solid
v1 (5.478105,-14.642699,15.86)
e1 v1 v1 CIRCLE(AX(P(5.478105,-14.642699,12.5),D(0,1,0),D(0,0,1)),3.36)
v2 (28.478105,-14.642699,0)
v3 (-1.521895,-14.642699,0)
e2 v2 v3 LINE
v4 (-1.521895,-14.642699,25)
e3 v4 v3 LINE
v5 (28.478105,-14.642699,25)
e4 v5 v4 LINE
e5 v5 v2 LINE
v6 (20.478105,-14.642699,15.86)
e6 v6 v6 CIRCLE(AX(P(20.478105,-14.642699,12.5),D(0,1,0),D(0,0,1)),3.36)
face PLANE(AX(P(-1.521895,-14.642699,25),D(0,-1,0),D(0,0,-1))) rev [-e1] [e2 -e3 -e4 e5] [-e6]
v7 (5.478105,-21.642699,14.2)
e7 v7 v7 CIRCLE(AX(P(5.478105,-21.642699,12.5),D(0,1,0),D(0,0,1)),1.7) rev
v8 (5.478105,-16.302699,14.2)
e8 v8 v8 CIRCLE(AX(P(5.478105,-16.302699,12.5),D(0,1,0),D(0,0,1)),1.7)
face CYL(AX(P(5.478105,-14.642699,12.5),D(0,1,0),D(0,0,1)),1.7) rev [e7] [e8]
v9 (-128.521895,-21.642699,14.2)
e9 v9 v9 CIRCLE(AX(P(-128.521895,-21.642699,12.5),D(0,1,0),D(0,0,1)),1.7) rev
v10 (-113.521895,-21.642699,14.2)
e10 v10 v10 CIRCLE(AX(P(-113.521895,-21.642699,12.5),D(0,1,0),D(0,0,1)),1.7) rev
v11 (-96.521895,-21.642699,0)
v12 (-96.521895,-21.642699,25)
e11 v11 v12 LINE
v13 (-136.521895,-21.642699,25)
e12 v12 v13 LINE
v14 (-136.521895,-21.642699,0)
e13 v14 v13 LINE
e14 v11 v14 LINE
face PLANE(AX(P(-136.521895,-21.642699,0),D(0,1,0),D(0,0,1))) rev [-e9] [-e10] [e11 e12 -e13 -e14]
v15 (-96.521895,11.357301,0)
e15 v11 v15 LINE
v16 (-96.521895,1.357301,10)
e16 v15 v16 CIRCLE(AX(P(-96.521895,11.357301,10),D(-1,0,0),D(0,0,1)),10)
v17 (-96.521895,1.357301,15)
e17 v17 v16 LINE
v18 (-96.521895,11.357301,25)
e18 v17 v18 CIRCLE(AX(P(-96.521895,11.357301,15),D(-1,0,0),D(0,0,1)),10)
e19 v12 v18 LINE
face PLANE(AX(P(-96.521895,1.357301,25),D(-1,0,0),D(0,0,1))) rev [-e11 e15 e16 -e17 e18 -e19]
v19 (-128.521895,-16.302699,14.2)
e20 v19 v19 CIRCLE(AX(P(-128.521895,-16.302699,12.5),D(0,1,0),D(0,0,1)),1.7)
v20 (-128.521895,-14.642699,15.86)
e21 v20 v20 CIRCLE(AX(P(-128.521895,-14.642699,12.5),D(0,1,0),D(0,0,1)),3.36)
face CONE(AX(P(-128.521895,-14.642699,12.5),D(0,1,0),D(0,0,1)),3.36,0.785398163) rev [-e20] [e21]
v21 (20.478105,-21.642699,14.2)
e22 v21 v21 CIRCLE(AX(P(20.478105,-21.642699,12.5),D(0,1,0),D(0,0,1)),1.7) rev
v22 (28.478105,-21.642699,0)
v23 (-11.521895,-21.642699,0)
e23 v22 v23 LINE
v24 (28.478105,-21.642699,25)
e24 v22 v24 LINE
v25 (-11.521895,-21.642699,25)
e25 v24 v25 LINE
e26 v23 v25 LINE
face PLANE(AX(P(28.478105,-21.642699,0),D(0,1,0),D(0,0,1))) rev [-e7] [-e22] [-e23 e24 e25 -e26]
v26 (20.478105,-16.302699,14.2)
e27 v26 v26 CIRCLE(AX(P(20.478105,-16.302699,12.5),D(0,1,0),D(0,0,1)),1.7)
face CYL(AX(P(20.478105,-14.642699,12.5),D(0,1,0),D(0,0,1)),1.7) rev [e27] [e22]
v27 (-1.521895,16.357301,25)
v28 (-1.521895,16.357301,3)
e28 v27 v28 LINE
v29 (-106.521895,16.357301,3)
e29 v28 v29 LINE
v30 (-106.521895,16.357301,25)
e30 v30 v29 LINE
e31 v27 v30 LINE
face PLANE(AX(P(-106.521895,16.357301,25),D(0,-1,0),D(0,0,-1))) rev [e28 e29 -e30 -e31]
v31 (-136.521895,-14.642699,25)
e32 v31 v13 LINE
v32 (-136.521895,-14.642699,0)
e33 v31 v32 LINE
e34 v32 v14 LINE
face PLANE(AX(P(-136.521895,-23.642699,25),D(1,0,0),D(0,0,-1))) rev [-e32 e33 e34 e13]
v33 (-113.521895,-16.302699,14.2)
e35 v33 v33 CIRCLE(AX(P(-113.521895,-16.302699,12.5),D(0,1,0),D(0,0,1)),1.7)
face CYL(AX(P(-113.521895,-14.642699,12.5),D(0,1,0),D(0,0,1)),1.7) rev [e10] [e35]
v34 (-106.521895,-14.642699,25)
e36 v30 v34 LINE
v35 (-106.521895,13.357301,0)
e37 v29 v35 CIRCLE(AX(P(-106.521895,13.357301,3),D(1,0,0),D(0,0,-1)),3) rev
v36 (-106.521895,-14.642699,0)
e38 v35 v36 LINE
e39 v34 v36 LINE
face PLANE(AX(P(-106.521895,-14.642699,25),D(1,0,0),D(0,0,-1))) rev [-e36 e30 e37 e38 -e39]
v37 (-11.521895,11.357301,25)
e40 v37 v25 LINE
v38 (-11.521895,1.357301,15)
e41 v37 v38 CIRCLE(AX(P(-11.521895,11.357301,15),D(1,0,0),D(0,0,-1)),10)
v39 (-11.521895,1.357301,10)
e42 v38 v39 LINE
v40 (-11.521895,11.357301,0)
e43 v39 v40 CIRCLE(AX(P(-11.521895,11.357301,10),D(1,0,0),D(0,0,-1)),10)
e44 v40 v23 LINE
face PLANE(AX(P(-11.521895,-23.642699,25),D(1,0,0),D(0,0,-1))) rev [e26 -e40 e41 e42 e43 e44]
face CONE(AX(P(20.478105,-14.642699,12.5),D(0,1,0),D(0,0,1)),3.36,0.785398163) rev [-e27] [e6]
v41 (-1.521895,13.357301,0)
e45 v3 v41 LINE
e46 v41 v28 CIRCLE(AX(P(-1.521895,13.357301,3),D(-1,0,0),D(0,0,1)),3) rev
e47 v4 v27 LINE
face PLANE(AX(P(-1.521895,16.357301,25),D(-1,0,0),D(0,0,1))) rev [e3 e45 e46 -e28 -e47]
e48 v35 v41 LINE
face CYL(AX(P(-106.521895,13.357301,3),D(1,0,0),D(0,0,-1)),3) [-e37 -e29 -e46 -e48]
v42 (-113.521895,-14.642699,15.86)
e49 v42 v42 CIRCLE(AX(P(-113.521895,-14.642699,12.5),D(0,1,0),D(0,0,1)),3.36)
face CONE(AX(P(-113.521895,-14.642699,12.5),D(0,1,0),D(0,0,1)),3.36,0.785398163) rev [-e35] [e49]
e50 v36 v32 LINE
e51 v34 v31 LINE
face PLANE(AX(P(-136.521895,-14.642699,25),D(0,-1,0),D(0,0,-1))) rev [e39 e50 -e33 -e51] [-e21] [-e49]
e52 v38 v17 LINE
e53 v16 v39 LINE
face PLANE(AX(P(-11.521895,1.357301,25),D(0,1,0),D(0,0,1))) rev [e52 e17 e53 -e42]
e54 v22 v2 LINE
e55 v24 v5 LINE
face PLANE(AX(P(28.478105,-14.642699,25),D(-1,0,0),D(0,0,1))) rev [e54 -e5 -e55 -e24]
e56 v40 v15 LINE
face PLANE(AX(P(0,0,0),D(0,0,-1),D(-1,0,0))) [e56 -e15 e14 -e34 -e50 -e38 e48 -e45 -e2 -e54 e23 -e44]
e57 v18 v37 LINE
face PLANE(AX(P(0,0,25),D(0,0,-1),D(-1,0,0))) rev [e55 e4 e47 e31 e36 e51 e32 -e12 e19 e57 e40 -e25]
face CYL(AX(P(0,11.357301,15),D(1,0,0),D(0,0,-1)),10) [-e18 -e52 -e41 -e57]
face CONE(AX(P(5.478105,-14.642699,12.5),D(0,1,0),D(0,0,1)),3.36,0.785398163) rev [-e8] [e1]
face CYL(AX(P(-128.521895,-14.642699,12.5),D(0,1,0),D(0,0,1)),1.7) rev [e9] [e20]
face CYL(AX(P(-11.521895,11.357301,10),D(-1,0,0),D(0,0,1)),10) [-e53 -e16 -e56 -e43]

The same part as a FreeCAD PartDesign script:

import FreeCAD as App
import Part
import Sketcher

V = App.Vector
Q = App.Units.Quantity


def edges_at(feature, points):
    """Names of the edges that pass closest to the given points."""
    edges = feature.Shape.Edges
    near = lambda p: min(range(len(edges)), key=lambda i: edges[i].distToShape(Part.Vertex(*p))[0])
    return sorted({f"Edge{near(p) + 1}" for p in points})

doc = App.newDocument("Part")
body = doc.addObject("PartDesign::Body", "Body")

sketch1 = body.newObject("Sketcher::SketchObject", "Sketch")
sketch1.AttachmentSupport = (doc.getObject("XY_Plane"), [""])
sketch1.MapMode = "FlatFace"
sketch1.addGeometry([
    Part.LineSegment(V(-137, -24, 0), V(-97, -24, 0)),
    Part.LineSegment(V(-97, -24, 0), V(-97, 1, 0)),
    Part.LineSegment(V(-97, 1, 0), V(-12, 1, 0)),
    Part.LineSegment(V(-12, 1, 0), V(-12, -24, 0)),
    Part.LineSegment(V(-12, -24, 0), V(28, -24, 0)),
    Part.LineSegment(V(28, -24, 0), V(28, -15, 0)),
    Part.LineSegment(V(28, -15, 0), V(-2, -15, 0)),
    Part.LineSegment(V(-2, -15, 0), V(-2, 16, 0)),
    Part.LineSegment(V(-2, 16, 0), V(-107, 16, 0)),
    Part.LineSegment(V(-107, 16, 0), V(-107, -15, 0)),
    Part.LineSegment(V(-107, -15, 0), V(-137, -15, 0)),
    Part.LineSegment(V(-137, -15, 0), V(-137, -24, 0)),
], False)
sketch1.addConstraint([
    Sketcher.Constraint("Coincident", 0, 2, 1, 1),
    Sketcher.Constraint("Coincident", 1, 2, 2, 1),
    Sketcher.Constraint("Coincident", 2, 2, 3, 1),
    Sketcher.Constraint("Coincident", 3, 2, 4, 1),
    Sketcher.Constraint("Coincident", 4, 2, 5, 1),
    Sketcher.Constraint("Coincident", 5, 2, 6, 1),
    Sketcher.Constraint("Coincident", 6, 2, 7, 1),
    Sketcher.Constraint("Coincident", 7, 2, 8, 1),
    Sketcher.Constraint("Coincident", 8, 2, 9, 1),
    Sketcher.Constraint("Coincident", 9, 2, 10, 1),
    Sketcher.Constraint("Coincident", 10, 2, 11, 1),
    Sketcher.Constraint("Coincident", 11, 2, 0, 1),
    Sketcher.Constraint("Horizontal", 0),
    Sketcher.Constraint("Vertical", 1),
    Sketcher.Constraint("Horizontal", 2),
    Sketcher.Constraint("Vertical", 3),
    Sketcher.Constraint("Horizontal", 4),
    Sketcher.Constraint("Vertical", 5),
    Sketcher.Constraint("Horizontal", 6),
    Sketcher.Constraint("Vertical", 7),
    Sketcher.Constraint("Horizontal", 8),
    Sketcher.Constraint("Vertical", 9),
    Sketcher.Constraint("Horizontal", 10),
    Sketcher.Constraint("Vertical", 11),
    Sketcher.Constraint("Horizontal", 0, 2, 3, 2),
    Sketcher.Constraint("Horizontal", 6, 2, 9, 2),
    Sketcher.Constraint("Equal", 0, 4),
    Sketcher.Constraint("Equal", 6, 10),
    Sketcher.Constraint("DistanceX", 0, 1, 0, 2, Q("40 mm")),
    Sketcher.Constraint("DistanceX", 2, 1, 2, 2, Q("85 mm")),
    Sketcher.Constraint("DistanceX", 6, 2, 6, 1, Q("30 mm")),
    Sketcher.Constraint("DistanceY", 1, 1, 1, 2, Q("25 mm")),
    Sketcher.Constraint("DistanceY", 5, 1, 5, 2, Q("9 mm")),
    Sketcher.Constraint("DistanceY", 7, 1, 7, 2, Q("31 mm")),
    Sketcher.Constraint("DistanceY", 0, 2, -1, 1, Q("23.642699 mm")),
    Sketcher.Constraint("DistanceX", 0, 2, -1, 1, Q("96.521895 mm")),
])
pad1 = body.newObject("PartDesign::Pad", "Pad")
pad1.Profile = sketch1
pad1.Length = 25
doc.recompute()

fillet = body.newObject("PartDesign::Fillet", "Fillet")
fillet.Base = (pad1, edges_at(pad1, [(-54.022, 1.357, 0), (-54.022, 1.357, 25)]))
fillet.Radius = 10
doc.recompute()

fillet2 = body.newObject("PartDesign::Fillet", "Fillet001")
fillet2.Base = (fillet, edges_at(fillet, [(-54.022, 16.357, 0)]))
fillet2.Radius = 3

sketch2 = body.newObject("Sketcher::SketchObject", "Sketch001")
sketch2.AttachmentSupport = (doc.getObject("XZ_Plane"), [""])
sketch2.MapMode = "FlatFace"
sketch2.AttachmentOffset = App.Placement(V(0, 0, 14.642699), App.Rotation())
sketch2.addGeometry([
    Part.Circle(V(-113.5, 12.5, 0), V(0, 0, 1), 1.5),
    Part.Circle(V(-128.5, 12.5, 0), V(0, 0, 1), 1.5),
    Part.Circle(V(20.5, 12.5, 0), V(0, 0, 1), 1.5),
    Part.Circle(V(5.5, 12.5, 0), V(0, 0, 1), 1.5),
], False)
sketch2.addConstraint([
    Sketcher.Constraint("Equal", 0, 1),
    Sketcher.Constraint("Equal", 1, 2),
    Sketcher.Constraint("Equal", 2, 3),
    Sketcher.Constraint("Horizontal", 0, 3, 1, 3),
    Sketcher.Constraint("Horizontal", 1, 3, 2, 3),
    Sketcher.Constraint("Horizontal", 2, 3, 3, 3),
    Sketcher.Constraint("Diameter", 0, Q("3 mm")),
    Sketcher.Constraint("DistanceX", 1, 3, 0, 3, Q("15 mm")),
    Sketcher.Constraint("DistanceX", 0, 3, 2, 3, Q("134 mm")),
    Sketcher.Constraint("DistanceX", 3, 3, 2, 3, Q("15 mm")),
    Sketcher.Constraint("DistanceY", -1, 1, 0, 3, Q("12.5 mm")),
    Sketcher.Constraint("DistanceX", 0, 3, -1, 1, Q("113.521895 mm")),
])
pocket1 = body.newObject("PartDesign::Pocket", "Pocket")
pocket1.Profile = sketch2
pocket1.Length = 9
pocket1.Reversed = True

sketch3 = body.newObject("Sketcher::SketchObject", "Sketch002")
sketch3.AttachmentSupport = (doc.getObject("XZ_Plane"), [""])
sketch3.MapMode = "FlatFace"
sketch3.AttachmentOffset = App.Placement(V(0, 0, 14.642699), App.Rotation())
sketch3.addGeometry([
    Part.Circle(V(-128.5, 12.5, 0), V(0, 0, 1), 1.7),
    Part.Circle(V(-113.5, 12.5, 0), V(0, 0, 1), 1.7),
    Part.Circle(V(20.5, 12.5, 0), V(0, 0, 1), 1.7),
    Part.Circle(V(5.5, 12.5, 0), V(0, 0, 1), 1.7),
], False)
sketch3.addConstraint([
    Sketcher.Constraint("Equal", 0, 1),
    Sketcher.Constraint("Equal", 1, 2),
    Sketcher.Constraint("Equal", 2, 3),
    Sketcher.Constraint("Horizontal", 0, 3, 1, 3),
    Sketcher.Constraint("Horizontal", 1, 3, 2, 3),
    Sketcher.Constraint("Horizontal", 2, 3, 3, 3),
    Sketcher.Constraint("Diameter", 0, Q("3.4 mm")),
    Sketcher.Constraint("DistanceX", 0, 3, 1, 3, Q("15 mm")),
    Sketcher.Constraint("DistanceX", 1, 3, 2, 3, Q("134 mm")),
    Sketcher.Constraint("DistanceX", 3, 3, 2, 3, Q("15 mm")),
    Sketcher.Constraint("DistanceY", -1, 1, 0, 3, Q("12.5 mm")),
    Sketcher.Constraint("DistanceX", 0, 3, -1, 1, Q("128.521895 mm")),
])
doc.recompute()
hole = body.newObject("PartDesign::Hole", "Hole")
hole.Profile = sketch3
hole.ThreadType = "None"
hole.Diameter = 3.4
hole.DepthType = "ThroughAll"
hole.HoleCutType = "Countersink"
hole.HoleCutDiameter = 6.72
hole.HoleCutCountersinkAngle = 90
hole.Reversed = True

sketch4 = body.newObject("Sketcher::SketchObject", "Sketch003")
sketch4.AttachmentSupport = (doc.getObject("XY_Plane"), [""])
sketch4.MapMode = "FlatFace"
sketch4.AttachmentOffset = App.Placement(V(0, 0, 25), App.Rotation())
sketch4.addGeometry([
    Part.LineSegment(V(-136.5, -21.6, 0), V(-136.5, -23.6, 0)),
    Part.LineSegment(V(-136.5, -23.6, 0), V(-96.5, -23.6, 0)),
    Part.LineSegment(V(-96.5, -23.6, 0), V(-96.5, -21.6, 0)),
    Part.LineSegment(V(-96.5, -21.6, 0), V(-136.5, -21.6, 0)),
    Part.LineSegment(V(-11.5, -21.6, 0), V(-11.5, -23.6, 0)),
    Part.LineSegment(V(-11.5, -23.6, 0), V(28.5, -23.6, 0)),
    Part.LineSegment(V(28.5, -23.6, 0), V(28.5, -21.6, 0)),
    Part.LineSegment(V(28.5, -21.6, 0), V(-11.5, -21.6, 0)),
], False)
sketch4.addConstraint([
    Sketcher.Constraint("Coincident", 0, 2, 1, 1),
    Sketcher.Constraint("Coincident", 1, 2, 2, 1),
    Sketcher.Constraint("Coincident", 2, 2, 3, 1),
    Sketcher.Constraint("Coincident", 3, 2, 0, 1),
    Sketcher.Constraint("Coincident", 4, 2, 5, 1),
    Sketcher.Constraint("Coincident", 5, 2, 6, 1),
    Sketcher.Constraint("Coincident", 6, 2, 7, 1),
    Sketcher.Constraint("Coincident", 7, 2, 4, 1),
    Sketcher.Constraint("Vertical", 0),
    Sketcher.Constraint("Horizontal", 1),
    Sketcher.Constraint("Vertical", 2),
    Sketcher.Constraint("Horizontal", 3),
    Sketcher.Constraint("Vertical", 4),
    Sketcher.Constraint("Horizontal", 5),
    Sketcher.Constraint("Vertical", 6),
    Sketcher.Constraint("Horizontal", 7),
    Sketcher.Constraint("Horizontal", 1, 2, 4, 2),
    Sketcher.Constraint("Horizontal", 3, 2, 6, 2),
    Sketcher.Constraint("Equal", 3, 5),
    Sketcher.Constraint("DistanceX", 1, 1, 1, 2, Q("40 mm")),
    Sketcher.Constraint("DistanceY", 0, 2, 0, 1, Q("2 mm")),
    Sketcher.Constraint("DistanceX", 1, 2, 4, 2, Q("85 mm")),
    Sketcher.Constraint("DistanceY", 0, 2, -1, 1, Q("23.642699 mm")),
    Sketcher.Constraint("DistanceX", 0, 2, -1, 1, Q("136.521895 mm")),
])
pocket2 = body.newObject("PartDesign::Pocket", "Pocket001")
pocket2.Profile = sketch4
pocket2.Length = 25

doc.recompute()
